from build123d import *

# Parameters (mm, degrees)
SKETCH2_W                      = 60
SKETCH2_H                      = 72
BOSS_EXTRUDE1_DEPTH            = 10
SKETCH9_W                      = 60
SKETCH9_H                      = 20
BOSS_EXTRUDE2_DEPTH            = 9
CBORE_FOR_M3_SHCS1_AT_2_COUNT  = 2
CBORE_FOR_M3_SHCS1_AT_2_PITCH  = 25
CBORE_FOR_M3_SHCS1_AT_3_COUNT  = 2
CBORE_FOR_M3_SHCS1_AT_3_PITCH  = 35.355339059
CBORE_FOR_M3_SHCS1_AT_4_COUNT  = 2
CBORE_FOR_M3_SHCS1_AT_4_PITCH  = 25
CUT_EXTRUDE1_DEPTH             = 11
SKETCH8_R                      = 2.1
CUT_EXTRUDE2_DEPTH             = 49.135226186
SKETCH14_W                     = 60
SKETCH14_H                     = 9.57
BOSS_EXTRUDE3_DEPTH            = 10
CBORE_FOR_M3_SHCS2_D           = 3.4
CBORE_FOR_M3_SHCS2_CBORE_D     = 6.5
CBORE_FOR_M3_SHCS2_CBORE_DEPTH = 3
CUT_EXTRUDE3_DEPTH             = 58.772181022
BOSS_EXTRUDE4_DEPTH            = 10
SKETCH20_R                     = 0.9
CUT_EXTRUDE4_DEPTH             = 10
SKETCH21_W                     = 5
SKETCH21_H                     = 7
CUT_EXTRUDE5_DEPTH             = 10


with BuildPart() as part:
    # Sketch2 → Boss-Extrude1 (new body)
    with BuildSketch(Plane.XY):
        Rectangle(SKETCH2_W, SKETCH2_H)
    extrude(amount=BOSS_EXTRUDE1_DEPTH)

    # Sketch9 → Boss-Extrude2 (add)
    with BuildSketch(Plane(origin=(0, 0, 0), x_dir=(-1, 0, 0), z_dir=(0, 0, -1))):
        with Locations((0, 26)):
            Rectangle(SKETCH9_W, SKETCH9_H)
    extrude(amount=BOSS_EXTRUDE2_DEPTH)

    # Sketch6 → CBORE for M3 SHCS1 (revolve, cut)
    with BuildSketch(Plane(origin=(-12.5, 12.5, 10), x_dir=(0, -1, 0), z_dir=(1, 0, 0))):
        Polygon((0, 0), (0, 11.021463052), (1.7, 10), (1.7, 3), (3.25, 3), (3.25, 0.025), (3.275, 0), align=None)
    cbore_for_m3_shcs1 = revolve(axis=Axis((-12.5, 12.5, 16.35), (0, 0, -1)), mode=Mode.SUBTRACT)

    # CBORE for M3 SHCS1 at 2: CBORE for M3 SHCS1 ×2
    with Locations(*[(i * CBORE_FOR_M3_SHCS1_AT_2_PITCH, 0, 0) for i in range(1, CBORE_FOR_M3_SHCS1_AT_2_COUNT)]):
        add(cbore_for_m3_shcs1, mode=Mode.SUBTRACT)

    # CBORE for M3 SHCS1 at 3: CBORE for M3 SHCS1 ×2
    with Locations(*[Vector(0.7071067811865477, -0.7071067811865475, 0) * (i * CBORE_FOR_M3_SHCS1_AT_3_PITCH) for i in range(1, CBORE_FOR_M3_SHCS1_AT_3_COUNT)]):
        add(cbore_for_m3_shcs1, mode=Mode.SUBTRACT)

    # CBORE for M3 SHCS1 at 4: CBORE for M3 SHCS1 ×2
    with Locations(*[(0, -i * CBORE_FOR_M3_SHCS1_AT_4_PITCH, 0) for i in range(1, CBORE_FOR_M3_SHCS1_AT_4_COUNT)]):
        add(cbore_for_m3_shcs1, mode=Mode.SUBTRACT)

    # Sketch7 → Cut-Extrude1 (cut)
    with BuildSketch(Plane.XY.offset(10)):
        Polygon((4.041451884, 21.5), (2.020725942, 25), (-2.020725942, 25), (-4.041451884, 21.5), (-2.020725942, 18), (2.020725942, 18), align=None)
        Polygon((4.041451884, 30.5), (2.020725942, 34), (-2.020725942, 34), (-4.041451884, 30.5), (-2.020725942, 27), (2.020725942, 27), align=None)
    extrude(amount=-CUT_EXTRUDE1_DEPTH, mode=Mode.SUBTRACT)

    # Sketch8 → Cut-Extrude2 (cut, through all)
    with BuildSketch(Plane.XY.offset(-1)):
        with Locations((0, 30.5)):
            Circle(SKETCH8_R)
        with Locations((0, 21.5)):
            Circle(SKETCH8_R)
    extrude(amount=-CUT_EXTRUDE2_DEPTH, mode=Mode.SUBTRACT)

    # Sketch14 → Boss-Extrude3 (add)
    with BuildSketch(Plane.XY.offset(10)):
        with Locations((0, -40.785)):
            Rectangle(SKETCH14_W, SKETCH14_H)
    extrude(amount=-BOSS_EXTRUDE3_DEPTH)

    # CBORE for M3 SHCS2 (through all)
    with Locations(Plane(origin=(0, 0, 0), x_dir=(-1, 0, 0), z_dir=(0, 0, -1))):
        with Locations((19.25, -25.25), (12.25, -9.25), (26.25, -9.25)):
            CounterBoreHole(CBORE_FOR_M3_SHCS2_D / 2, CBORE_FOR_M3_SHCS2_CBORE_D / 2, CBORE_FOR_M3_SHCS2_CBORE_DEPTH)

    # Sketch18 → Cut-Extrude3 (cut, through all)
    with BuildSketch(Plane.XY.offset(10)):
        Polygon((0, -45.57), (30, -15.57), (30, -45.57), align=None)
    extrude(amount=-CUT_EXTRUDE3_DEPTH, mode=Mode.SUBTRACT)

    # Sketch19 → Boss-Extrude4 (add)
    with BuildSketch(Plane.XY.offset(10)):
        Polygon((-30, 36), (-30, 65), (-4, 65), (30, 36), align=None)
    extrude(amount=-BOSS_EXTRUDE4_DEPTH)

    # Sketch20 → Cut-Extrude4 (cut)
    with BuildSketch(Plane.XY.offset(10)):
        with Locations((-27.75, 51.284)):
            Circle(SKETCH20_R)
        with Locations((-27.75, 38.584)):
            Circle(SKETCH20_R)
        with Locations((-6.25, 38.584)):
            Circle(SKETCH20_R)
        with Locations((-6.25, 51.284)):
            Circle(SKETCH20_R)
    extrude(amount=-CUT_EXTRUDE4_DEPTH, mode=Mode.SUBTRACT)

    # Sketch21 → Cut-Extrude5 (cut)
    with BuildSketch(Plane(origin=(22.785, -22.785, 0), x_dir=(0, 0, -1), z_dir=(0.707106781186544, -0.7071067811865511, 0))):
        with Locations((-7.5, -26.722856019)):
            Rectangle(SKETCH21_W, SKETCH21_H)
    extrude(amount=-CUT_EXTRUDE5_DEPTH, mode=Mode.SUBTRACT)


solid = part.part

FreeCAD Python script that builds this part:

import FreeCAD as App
import Part
import Sketcher

V = App.Vector
Q = App.Units.Quantity


def add_polygon(sketch, points):
    """Adds a closed chain of lines whose ends are joined by coincident constraints."""
    first, n = sketch.GeometryCount, len(points)
    for a, b in zip(points, points[1:] + points[:1]):
        sketch.addGeometry(Part.LineSegment(App.Vector(*a, 0), App.Vector(*b, 0)), False)
    for i in range(n):
        sketch.addConstraint(Sketcher.Constraint("Coincident", first + i, 2, first + (i + 1) % n, 1))

doc = App.newDocument("Part")
params = doc.addObject("Spreadsheet::Sheet", "Params")
for row, (alias, value) in enumerate([
    ("sketch1_width", "60 mm"),
    ("sketch1_height", "72 mm"),
    ("pad1_length", "10 mm"),
    ("sketch2_width", "60 mm"),
    ("sketch2_height", "20 mm"),
    ("pad2_length", "9 mm"),
    ("sketch3_height", "7 mm"),
    ("sketch3_width", "1.55 mm"),
    ("groove_angle", "360 deg"),
    ("linearpattern_pitch", "25 mm"),
    ("linearpattern2_pitch", "35.355339 mm"),
    ("linearpattern3_pitch", "25 mm"),
    ("pocket1_length", "11 mm"),
    ("sketch5_diameter", "4.2 mm"),
    ("sketch6_width", "60 mm"),
    ("sketch6_height", "9.57 mm"),
    ("pad3_length", "10 mm"),
    ("sketch7_diameter", "3.4 mm"),
    ("hole_diameter", "3.4 mm"),
    ("hole_cbore_diameter", "6.5 mm"),
    ("hole_cbore_depth", "3 mm"),
    ("sketch8_width", "30 mm"),
    ("sketch9_width", "60 mm"),
    ("sketch9_width2", "26 mm"),
    ("sketch9_height", "29 mm"),
    ("pad4_length", "10 mm"),
    ("sketch10_diameter", "1.8 mm"),
    ("pocket4_length", "10 mm"),
    ("sketch11_width", "5 mm"),
    ("sketch11_height", "7 mm"),
    ("pocket5_length", "10 mm"),
], start=1):
    params.set(f"A{row}", alias)
    params.set(f"B{row}", "=" + value)
    params.setAlias(f"B{row}", alias)

body = doc.addObject("PartDesign::Body", "Body")

# Sketch on XY plane
sketch1 = body.newObject("Sketcher::SketchObject", "Sketch")
sketch1.AttachmentSupport = (doc.getObject("XY_Plane"), [""])
sketch1.MapMode = "FlatFace"
add_polygon(sketch1, [(-30, 36), (-30, -36), (30, -36), (30, 36)])  # lines 0-3
sketch1.addConstraint(Sketcher.Constraint("Vertical", 0))
sketch1.addConstraint(Sketcher.Constraint("Horizontal", 1))
sketch1.addConstraint(Sketcher.Constraint("Vertical", 2))
sketch1.addConstraint(Sketcher.Constraint("Horizontal", 3))
sketch1.addConstraint(Sketcher.Constraint("Symmetric", 0, 2, 2, 2, -1, 1))
sketch1.addConstraint(Sketcher.Constraint("DistanceX", 1, 1, 1, 2, Q("60 mm")))
sketch1.addConstraint(Sketcher.Constraint("DistanceY", 0, 2, 0, 1, Q("72 mm")))
sketch1.setExpression("Constraints[9]", "Params.sketch1_width")
sketch1.setExpression("Constraints[10]", "Params.sketch1_height")
pad1 = body.newObject("PartDesign::Pad", "Pad")
pad1.Profile = sketch1
pad1.setExpression("Length", "Params.pad1_length")

# Sketch on XY plane
sketch2 = body.newObject("Sketcher::SketchObject", "Sketch001")
sketch2.AttachmentSupport = (doc.getObject("XY_Plane"), [""])
sketch2.MapMode = "FlatFace"
add_polygon(sketch2, [(30, 36), (30, 16), (-30, 16), (-30, 36)])  # lines 0-3
sketch2.addConstraint(Sketcher.Constraint("Vertical", 0))
sketch2.addConstraint(Sketcher.Constraint("Horizontal", 1))
sketch2.addConstraint(Sketcher.Constraint("Vertical", 2))
sketch2.addConstraint(Sketcher.Constraint("Horizontal", 3))
sketch2.addConstraint(Sketcher.Constraint("DistanceX", 1, 2, 1, 1, Q("60 mm")))
sketch2.addConstraint(Sketcher.Constraint("DistanceY", 0, 2, 0, 1, Q("20 mm")))
sketch2.addConstraint(Sketcher.Constraint("DistanceX", -1, 1, 0, 2, Q("30 mm")))
sketch2.addConstraint(Sketcher.Constraint("DistanceY", -1, 1, 0, 2, Q("16 mm")))
sketch2.setExpression("Constraints[8]", "Params.sketch2_width")
sketch2.setExpression("Constraints[9]", "Params.sketch2_height")
pad2 = body.newObject("PartDesign::Pad", "Pad001")
pad2.Profile = sketch2
pad2.setExpression("Length", "Params.pad2_length")
pad2.Reversed = True

# Sketch on YZ plane
sketch3 = body.newObject("Sketcher::SketchObject", "Sketch002")
sketch3.AttachmentSupport = (doc.getObject("YZ_Plane"), [""])
sketch3.MapMode = "FlatFace"
sketch3.AttachmentOffset = App.Placement(V(0, 0, -12.5), App.Rotation())
add_polygon(sketch3, [(12.5, -1.021), (12.5, 10), (9.225, 10), (9.25, 9.975), (9.25, 7), (10.8, 7), (10.8, 0)])  # lines 0-6
sketch3.addGeometry(Part.LineSegment(V(12.5, 10, 0), V(12.5, -1.021, 0)), True)  # axis
sketch3.addConstraint(Sketcher.Constraint("Vertical", 0))
sketch3.addConstraint(Sketcher.Constraint("Horizontal", 1))
sketch3.addConstraint(Sketcher.Constraint("Vertical", 3))
sketch3.addConstraint(Sketcher.Constraint("Horizontal", 4))
sketch3.addConstraint(Sketcher.Constraint("Vertical", 5))
sketch3.addConstraint(Sketcher.Constraint("Vertical", 7))
sketch3.addConstraint(Sketcher.Constraint("Coincident", 7, 1, 0, 2))
sketch3.addConstraint(Sketcher.Constraint("PointOnObject", 5, 2, -1))
sketch3.addConstraint(Sketcher.Constraint("Equal", 0, 7))
sketch3.addConstraint(Sketcher.Constraint("DistanceY", 5, 2, 5, 1, Q("7 mm")))
sketch3.addConstraint(Sketcher.Constraint("Angle", 2, Q("-45 deg")))
sketch3.addConstraint(Sketcher.Constraint("Angle", 6, Q("-31 deg")))
sketch3.addConstraint(Sketcher.Constraint("DistanceY", -1, 1, 0, 2, Q("10 mm")))
sketch3.addConstraint(Sketcher.Constraint("DistanceX", 4, 1, 4, 2, Q("1.55 mm")))
sketch3.addConstraint(Sketcher.Constraint("DistanceX", -1, 1, 0, 2, Q("12.5 mm")))
sketch3.addConstraint(Sketcher.Constraint("DistanceX", -1, 1, 4, 2, Q("10.8 mm")))
sketch3.addConstraint(Sketcher.Constraint("DistanceX", 1, 2, 1, 1, Q("3.275 mm")))
sketch3.setExpression("Constraints[16]", "Params.sketch3_height")
sketch3.setExpression("Constraints[20]", "Params.sketch3_width")
groove = body.newObject("PartDesign::Groove", "Groove")
groove.Profile = sketch3
groove.ReferenceAxis = (sketch3, ["Axis0"])
groove.setExpression("Angle", "Params.groove_angle")
doc.recompute()

linearpattern = body.newObject("PartDesign::LinearPattern", "LinearPattern")
linearpattern.Originals = [groove]
linearpattern.Direction = (doc.getObject("X_Axis"), [""])
linearpattern.Mode = "offset"
linearpattern.setExpression("Offset", "Params.linearpattern_pitch")
linearpattern.Occurrences = 2
body.Tip = linearpattern
doc.recompute()

datumline = body.newObject("PartDesign::Line", "DatumLine")
datumline.Placement = App.Placement(V(0, 0, 0), App.Rotation(V(0, 0, 1), V(0.707106781, -0.707106781, 0)))
linearpattern2 = body.newObject("PartDesign::LinearPattern", "LinearPattern001")
linearpattern2.Originals = [groove]
linearpattern2.Direction = (datumline, [""])
linearpattern2.Mode = "offset"
linearpattern2.setExpression("Offset", "Params.linearpattern2_pitch")
linearpattern2.Occurrences = 2
body.Tip = linearpattern2
doc.recompute()

linearpattern3 = body.newObject("PartDesign::LinearPattern", "LinearPattern002")
linearpattern3.Originals = [groove]
linearpattern3.Direction = (doc.getObject("Y_Axis"), [""])
linearpattern3.Mode = "offset"
linearpattern3.setExpression("Offset", "Params.linearpattern3_pitch")
linearpattern3.Occurrences = 2
linearpattern3.Reversed = True
body.Tip = linearpattern3

# Sketch on XY plane
sketch4 = body.newObject("Sketcher::SketchObject", "Sketch003")
sketch4.AttachmentSupport = (doc.getObject("XY_Plane"), [""])
sketch4.MapMode = "FlatFace"
sketch4.AttachmentOffset = App.Placement(V(0, 0, 10), App.Rotation())
add_polygon(sketch4, [(4, 21.5), (2, 25), (-2, 25), (-4, 21.5), (-2, 18), (2, 18)])  # lines 0-5
add_polygon(sketch4, [(4, 30.5), (2, 34), (-2, 34), (-4, 30.5), (-2, 27), (2, 27)])  # lines 6-11
sketch4.addConstraint(Sketcher.Constraint("Horizontal", 1))
sketch4.addConstraint(Sketcher.Constraint("Horizontal", 4))
sketch4.addConstraint(Sketcher.Constraint("Horizontal", 7))
sketch4.addConstraint(Sketcher.Constraint("Horizontal", 10))
sketch4.addConstraint(Sketcher.Constraint("Symmetric", 2, 2, 5, 2, -2))
sketch4.addConstraint(Sketcher.Constraint("Symmetric", 8, 2, 11, 2, -2))
sketch4.addConstraint(Sketcher.Constraint("Parallel", 0, 3))
sketch4.addConstraint(Sketcher.Constraint("Parallel", 2, 5))
sketch4.addConstraint(Sketcher.Constraint("Parallel", 3, 6))
sketch4.addConstraint(Sketcher.Constraint("Parallel", 5, 8))
sketch4.addConstraint(Sketcher.Constraint("Parallel", 6, 9))
sketch4.addConstraint(Sketcher.Constraint("Parallel", 8, 11))
sketch4.addConstraint(Sketcher.Constraint("Vertical", 1, 2, 3, 2))
sketch4.addConstraint(Sketcher.Constraint("Vertical", 0, 2, 4, 2))
sketch4.addConstraint(Sketcher.Constraint("Vertical", 4, 2, 6, 2))
sketch4.addConstraint(Sketcher.Constraint("Vertical", 2, 2, 8, 2))
sketch4.addConstraint(Sketcher.Constraint("Vertical", 7, 2, 9, 2))
sketch4.addConstraint(Sketcher.Constraint("Angle", 0, Q("120 deg")))
sketch4.addConstraint(Sketcher.Constraint("DistanceY", -1, 1, 0, 2, Q("25 mm")))
sketch4.addConstraint(Sketcher.Constraint("DistanceY", -1, 1, 3, 2, Q("18 mm")))
sketch4.addConstraint(Sketcher.Constraint("DistanceY", -1, 1, 6, 2, Q("34 mm")))
sketch4.addConstraint(Sketcher.Constraint("DistanceX", 1, 2, 1, 1, Q("4.041452 mm")))
pocket1 = body.newObject("PartDesign::Pocket", "Pocket")
pocket1.Profile = sketch4
pocket1.setExpression("Length", "Params.pocket1_length")

# Sketch on XY plane
sketch5 = body.newObject("Sketcher::SketchObject", "Sketch004")
sketch5.AttachmentSupport = (doc.getObject("XY_Plane"), [""])
sketch5.MapMode = "FlatFace"
sketch5.AttachmentOffset = App.Placement(V(0, 0, -1), App.Rotation())
sketch5.addGeometry(Part.Circle(V(0, 30.5, 0), V(0, 0, 1), 2.1), False)
sketch5.addGeometry(Part.Circle(V(0, 21.5, 0), V(0, 0, 1), 2.1), False)
sketch5.addConstraint(Sketcher.Constraint("Equal", 0, 1))
sketch5.addConstraint(Sketcher.Constraint("PointOnObject", 0, 3, -2))
sketch5.addConstraint(Sketcher.Constraint("PointOnObject", 1, 3, -2))
sketch5.addConstraint(Sketcher.Constraint("Diameter", 0, Q("4.2 mm")))
sketch5.addConstraint(Sketcher.Constraint("DistanceY", 1, 3, 0, 3, Q("9 mm")))
sketch5.addConstraint(Sketcher.Constraint("DistanceY", -1, 1, 0, 3, Q("30.5 mm")))
sketch5.setExpression("Constraints[3]", "Params.sketch5_diameter")
pocket2 = body.newObject("PartDesign::Pocket", "Pocket001")
pocket2.Profile = sketch5
pocket2.Type = "ThroughAll"

# Sketch on XY plane
sketch6 = body.newObject("Sketcher::SketchObject", "Sketch005")
sketch6.AttachmentSupport = (doc.getObject("XY_Plane"), [""])
sketch6.MapMode = "FlatFace"
sketch6.AttachmentOffset = App.Placement(V(0, 0, 10), App.Rotation())
add_polygon(sketch6, [(-30, -36), (-30, -46), (30, -46), (30, -36)])  # lines 0-3
sketch6.addConstraint(Sketcher.Constraint("Vertical", 0))
sketch6.addConstraint(Sketcher.Constraint("Horizontal", 1))
sketch6.addConstraint(Sketcher.Constraint("Vertical", 2))
sketch6.addConstraint(Sketcher.Constraint("Horizontal", 3))
sketch6.addConstraint(Sketcher.Constraint("DistanceX", 1, 1, 1, 2, Q("60 mm")))
sketch6.addConstraint(Sketcher.Constraint("DistanceX", 0, 2, -1, 1, Q("30 mm")))
sketch6.addConstraint(Sketcher.Constraint("DistanceY", 2, 2, -1, 1, Q("36 mm")))
sketch6.addConstraint(Sketcher.Constraint("DistanceY", 0, 2, 0, 1, Q("9.57 mm")))
sketch6.setExpression("Constraints[8]", "Params.sketch6_width")
sketch6.setExpression("Constraints[11]", "Params.sketch6_height")
pad3 = body.newObject("PartDesign::Pad", "Pad002")
pad3.Profile = sketch6
pad3.setExpression("Length", "Params.pad3_length")
pad3.Reversed = True

# Sketch on XY plane
sketch7 = body.newObject("Sketcher::SketchObject", "Sketch006")
sketch7.AttachmentSupport = (doc.getObject("XY_Plane"), [""])
sketch7.MapMode = "FlatFace"
sketch7.addGeometry(Part.Circle(V(-19.2, -25.2, 0), V(0, 0, 1), 1.7), False)
sketch7.addGeometry(Part.Circle(V(-12.2, -9.2, 0), V(0, 0, 1), 1.7), False)
sketch7.addGeometry(Part.Circle(V(-26.2, -9.2, 0), V(0, 0, 1), 1.7), False)
sketch7.addConstraint(Sketcher.Constraint("Equal", 0, 1))
sketch7.addConstraint(Sketcher.Constraint("Equal", 1, 2))
sketch7.addConstraint(Sketcher.Constraint("Horizontal", 1, 3, 2, 3))
sketch7.addConstraint(Sketcher.Constraint("Diameter", 0, Q("3.4 mm")))
sketch7.addConstraint(Sketcher.Constraint("DistanceX", 0, 3, 1, 3, Q("7 mm")))
sketch7.addConstraint(Sketcher.Constraint("DistanceY", 0, 3, 1, 3, Q("16 mm")))
sketch7.addConstraint(Sketcher.Constraint("DistanceX", 2, 3, 1, 3, Q("14 mm")))
sketch7.addConstraint(Sketcher.Constraint("DistanceX", 0, 3, -1, 1, Q("19.25 mm")))
sketch7.addConstraint(Sketcher.Constraint("DistanceY", 0, 3, -1, 1, Q("25.25 mm")))
sketch7.setExpression("Constraints[3]", "Params.sketch7_diameter")
doc.recompute()
hole = body.newObject("PartDesign::Hole", "Hole")
hole.Profile = sketch7
hole.ThreadType = "None"
hole.setExpression("Diameter", "Params.hole_diameter")
hole.DepthType = "ThroughAll"
hole.HoleCutType = "Counterbore"
hole.setExpression("HoleCutDiameter", "Params.hole_cbore_diameter")
hole.setExpression("HoleCutDepth", "Params.hole_cbore_depth")
hole.Reversed = True

# Sketch on XY plane
sketch8 = body.newObject("Sketcher::SketchObject", "Sketch007")
sketch8.AttachmentSupport = (doc.getObject("XY_Plane"), [""])
sketch8.MapMode = "FlatFace"
sketch8.AttachmentOffset = App.Placement(V(0, 0, 10), App.Rotation())
add_polygon(sketch8, [(30, -16), (0, -46), (30, -46)])  # lines 0-2
sketch8.addConstraint(Sketcher.Constraint("Horizontal", 1))
sketch8.addConstraint(Sketcher.Constraint("Vertical", 2))
sketch8.addConstraint(Sketcher.Constraint("PointOnObject", 0, 2, -2))
sketch8.addConstraint(Sketcher.Constraint("Equal", 1, 2))
sketch8.addConstraint(Sketcher.Constraint("DistanceX", 1, 1, 1, 2, Q("30 mm")))
sketch8.addConstraint(Sketcher.Constraint("DistanceY", 0, 2, -1, 1, Q("45.57 mm")))
sketch8.setExpression("Constraints[7]", "Params.sketch8_width")
pocket3 = body.newObject("PartDesign::Pocket", "Pocket002")
pocket3.Profile = sketch8
pocket3.Type = "ThroughAll"

# Sketch on XY plane
sketch9 = body.newObject("Sketcher::SketchObject", "Sketch008")
sketch9.AttachmentSupport = (doc.getObject("XY_Plane"), [""])
sketch9.MapMode = "FlatFace"
sketch9.AttachmentOffset = App.Placement(V(0, 0, 10), App.Rotation())
add_polygon(sketch9, [(-30, 65), (-30, 36), (30, 36), (-4, 65)])  # lines 0-3
sketch9.addConstraint(Sketcher.Constraint("Vertical", 0))
sketch9.addConstraint(Sketcher.Constraint("Horizontal", 1))
sketch9.addConstraint(Sketcher.Constraint("Horizontal", 3))
sketch9.addConstraint(Sketcher.Constraint("DistanceX", 1, 1, 1, 2, Q("60 mm")))
sketch9.addConstraint(Sketcher.Constraint("DistanceX", 3, 2, 3, 1, Q("26 mm")))
sketch9.addConstraint(Sketcher.Constraint("DistanceY", 0, 2, 0, 1, Q("29 mm")))
sketch9.addConstraint(Sketcher.Constraint("DistanceX", 0, 2, -1, 1, Q("30 mm")))
sketch9.addConstraint(Sketcher.Constraint("DistanceY", -1, 1, 0, 2, Q("36 mm")))
sketch9.setExpression("Constraints[7]", "Params.sketch9_width")
sketch9.setExpression("Constraints[8]", "Params.sketch9_width2")
sketch9.setExpression("Constraints[9]", "Params.sketch9_height")
pad4 = body.newObject("PartDesign::Pad", "Pad003")
pad4.Profile = sketch9
pad4.setExpression("Length", "Params.pad4_length")
pad4.Reversed = True

# Sketch on XY plane
sketch10 = body.newObject("Sketcher::SketchObject", "Sketch009")
sketch10.AttachmentSupport = (doc.getObject("XY_Plane"), [""])
sketch10.MapMode = "FlatFace"
sketch10.AttachmentOffset = App.Placement(V(0, 0, 10), App.Rotation())
sketch10.addGeometry(Part.Circle(V(-27.8, 51.3, 0), V(0, 0, 1), 0.9), False)
sketch10.addGeometry(Part.Circle(V(-27.8, 38.6, 0), V(0, 0, 1), 0.9), False)
sketch10.addGeometry(Part.Circle(V(-6.2, 38.6, 0), V(0, 0, 1), 0.9), False)
sketch10.addGeometry(Part.Circle(V(-6.2, 51.3, 0), V(0, 0, 1), 0.9), False)
sketch10.addConstraint(Sketcher.Constraint("Equal", 0, 1))
sketch10.addConstraint(Sketcher.Constraint("Equal", 1, 2))
sketch10.addConstraint(Sketcher.Constraint("Equal", 2, 3))
sketch10.addConstraint(Sketcher.Constraint("Horizontal", 1, 3, 2, 3))
sketch10.addConstraint(Sketcher.Constraint("Horizontal", 0, 3, 3, 3))
sketch10.addConstraint(Sketcher.Constraint("Vertical", 0, 3, 1, 3))
sketch10.addConstraint(Sketcher.Constraint("Vertical", 2, 3, 3, 3))
sketch10.addConstraint(Sketcher.Constraint("Diameter", 0, Q("1.8 mm")))
sketch10.addConstraint(Sketcher.Constraint("DistanceY", 1, 3, 0, 3, Q("12.7 mm")))
sketch10.addConstraint(Sketcher.Constraint("DistanceX", 1, 3, 2, 3, Q("21.5 mm")))
sketch10.addConstraint(Sketcher.Constraint("DistanceX", 0, 3, -1, 1, Q("27.75 mm")))
sketch10.addConstraint(Sketcher.Constraint("DistanceY", -1, 1, 0, 3, Q("51.284 mm")))
sketch10.setExpression("Constraints[7]", "Params.sketch10_diameter")
pocket4 = body.newObject("PartDesign::Pocket", "Pocket003")
pocket4.Profile = sketch10
pocket4.setExpression("Length", "Params.pocket4_length")

# Sketch on an angled plane
sketch11 = body.newObject("Sketcher::SketchObject", "Sketch010")
sketch11.Placement = App.Placement(V(22.785, -22.785, 0), App.Rotation(V(0, 0, -1), V(0.707106781, 0.707106781, 0), V(0.707106781, -0.707106781, 0), "ZXY"))
add_polygon(sketch11, [(-10, -23), (-10, -30), (-5, -30), (-5, -23)])  # lines 0-3
sketch11.addConstraint(Sketcher.Constraint("Vertical", 0))
sketch11.addConstraint(Sketcher.Constraint("Horizontal", 1))
sketch11.addConstraint(Sketcher.Constraint("Vertical", 2))
sketch11.addConstraint(Sketcher.Constraint("Horizontal", 3))
sketch11.addConstraint(Sketcher.Constraint("DistanceX", 1, 1, 1, 2, Q("5 mm")))
sketch11.addConstraint(Sketcher.Constraint("DistanceY", 0, 2, 0, 1, Q("7 mm")))
sketch11.addConstraint(Sketcher.Constraint("DistanceX", 0, 2, -1, 1, Q("10 mm")))
sketch11.addConstraint(Sketcher.Constraint("DistanceY", 0, 2, -1, 1, Q("30.222856 mm")))
sketch11.setExpression("Constraints[8]", "Params.sketch11_width")
sketch11.setExpression("Constraints[9]", "Params.sketch11_height")
pocket5 = body.newObject("PartDesign::Pocket", "Pocket004")
pocket5.Profile = sketch11
pocket5.setExpression("Length", "Params.pocket5_length")

doc.recompute()
